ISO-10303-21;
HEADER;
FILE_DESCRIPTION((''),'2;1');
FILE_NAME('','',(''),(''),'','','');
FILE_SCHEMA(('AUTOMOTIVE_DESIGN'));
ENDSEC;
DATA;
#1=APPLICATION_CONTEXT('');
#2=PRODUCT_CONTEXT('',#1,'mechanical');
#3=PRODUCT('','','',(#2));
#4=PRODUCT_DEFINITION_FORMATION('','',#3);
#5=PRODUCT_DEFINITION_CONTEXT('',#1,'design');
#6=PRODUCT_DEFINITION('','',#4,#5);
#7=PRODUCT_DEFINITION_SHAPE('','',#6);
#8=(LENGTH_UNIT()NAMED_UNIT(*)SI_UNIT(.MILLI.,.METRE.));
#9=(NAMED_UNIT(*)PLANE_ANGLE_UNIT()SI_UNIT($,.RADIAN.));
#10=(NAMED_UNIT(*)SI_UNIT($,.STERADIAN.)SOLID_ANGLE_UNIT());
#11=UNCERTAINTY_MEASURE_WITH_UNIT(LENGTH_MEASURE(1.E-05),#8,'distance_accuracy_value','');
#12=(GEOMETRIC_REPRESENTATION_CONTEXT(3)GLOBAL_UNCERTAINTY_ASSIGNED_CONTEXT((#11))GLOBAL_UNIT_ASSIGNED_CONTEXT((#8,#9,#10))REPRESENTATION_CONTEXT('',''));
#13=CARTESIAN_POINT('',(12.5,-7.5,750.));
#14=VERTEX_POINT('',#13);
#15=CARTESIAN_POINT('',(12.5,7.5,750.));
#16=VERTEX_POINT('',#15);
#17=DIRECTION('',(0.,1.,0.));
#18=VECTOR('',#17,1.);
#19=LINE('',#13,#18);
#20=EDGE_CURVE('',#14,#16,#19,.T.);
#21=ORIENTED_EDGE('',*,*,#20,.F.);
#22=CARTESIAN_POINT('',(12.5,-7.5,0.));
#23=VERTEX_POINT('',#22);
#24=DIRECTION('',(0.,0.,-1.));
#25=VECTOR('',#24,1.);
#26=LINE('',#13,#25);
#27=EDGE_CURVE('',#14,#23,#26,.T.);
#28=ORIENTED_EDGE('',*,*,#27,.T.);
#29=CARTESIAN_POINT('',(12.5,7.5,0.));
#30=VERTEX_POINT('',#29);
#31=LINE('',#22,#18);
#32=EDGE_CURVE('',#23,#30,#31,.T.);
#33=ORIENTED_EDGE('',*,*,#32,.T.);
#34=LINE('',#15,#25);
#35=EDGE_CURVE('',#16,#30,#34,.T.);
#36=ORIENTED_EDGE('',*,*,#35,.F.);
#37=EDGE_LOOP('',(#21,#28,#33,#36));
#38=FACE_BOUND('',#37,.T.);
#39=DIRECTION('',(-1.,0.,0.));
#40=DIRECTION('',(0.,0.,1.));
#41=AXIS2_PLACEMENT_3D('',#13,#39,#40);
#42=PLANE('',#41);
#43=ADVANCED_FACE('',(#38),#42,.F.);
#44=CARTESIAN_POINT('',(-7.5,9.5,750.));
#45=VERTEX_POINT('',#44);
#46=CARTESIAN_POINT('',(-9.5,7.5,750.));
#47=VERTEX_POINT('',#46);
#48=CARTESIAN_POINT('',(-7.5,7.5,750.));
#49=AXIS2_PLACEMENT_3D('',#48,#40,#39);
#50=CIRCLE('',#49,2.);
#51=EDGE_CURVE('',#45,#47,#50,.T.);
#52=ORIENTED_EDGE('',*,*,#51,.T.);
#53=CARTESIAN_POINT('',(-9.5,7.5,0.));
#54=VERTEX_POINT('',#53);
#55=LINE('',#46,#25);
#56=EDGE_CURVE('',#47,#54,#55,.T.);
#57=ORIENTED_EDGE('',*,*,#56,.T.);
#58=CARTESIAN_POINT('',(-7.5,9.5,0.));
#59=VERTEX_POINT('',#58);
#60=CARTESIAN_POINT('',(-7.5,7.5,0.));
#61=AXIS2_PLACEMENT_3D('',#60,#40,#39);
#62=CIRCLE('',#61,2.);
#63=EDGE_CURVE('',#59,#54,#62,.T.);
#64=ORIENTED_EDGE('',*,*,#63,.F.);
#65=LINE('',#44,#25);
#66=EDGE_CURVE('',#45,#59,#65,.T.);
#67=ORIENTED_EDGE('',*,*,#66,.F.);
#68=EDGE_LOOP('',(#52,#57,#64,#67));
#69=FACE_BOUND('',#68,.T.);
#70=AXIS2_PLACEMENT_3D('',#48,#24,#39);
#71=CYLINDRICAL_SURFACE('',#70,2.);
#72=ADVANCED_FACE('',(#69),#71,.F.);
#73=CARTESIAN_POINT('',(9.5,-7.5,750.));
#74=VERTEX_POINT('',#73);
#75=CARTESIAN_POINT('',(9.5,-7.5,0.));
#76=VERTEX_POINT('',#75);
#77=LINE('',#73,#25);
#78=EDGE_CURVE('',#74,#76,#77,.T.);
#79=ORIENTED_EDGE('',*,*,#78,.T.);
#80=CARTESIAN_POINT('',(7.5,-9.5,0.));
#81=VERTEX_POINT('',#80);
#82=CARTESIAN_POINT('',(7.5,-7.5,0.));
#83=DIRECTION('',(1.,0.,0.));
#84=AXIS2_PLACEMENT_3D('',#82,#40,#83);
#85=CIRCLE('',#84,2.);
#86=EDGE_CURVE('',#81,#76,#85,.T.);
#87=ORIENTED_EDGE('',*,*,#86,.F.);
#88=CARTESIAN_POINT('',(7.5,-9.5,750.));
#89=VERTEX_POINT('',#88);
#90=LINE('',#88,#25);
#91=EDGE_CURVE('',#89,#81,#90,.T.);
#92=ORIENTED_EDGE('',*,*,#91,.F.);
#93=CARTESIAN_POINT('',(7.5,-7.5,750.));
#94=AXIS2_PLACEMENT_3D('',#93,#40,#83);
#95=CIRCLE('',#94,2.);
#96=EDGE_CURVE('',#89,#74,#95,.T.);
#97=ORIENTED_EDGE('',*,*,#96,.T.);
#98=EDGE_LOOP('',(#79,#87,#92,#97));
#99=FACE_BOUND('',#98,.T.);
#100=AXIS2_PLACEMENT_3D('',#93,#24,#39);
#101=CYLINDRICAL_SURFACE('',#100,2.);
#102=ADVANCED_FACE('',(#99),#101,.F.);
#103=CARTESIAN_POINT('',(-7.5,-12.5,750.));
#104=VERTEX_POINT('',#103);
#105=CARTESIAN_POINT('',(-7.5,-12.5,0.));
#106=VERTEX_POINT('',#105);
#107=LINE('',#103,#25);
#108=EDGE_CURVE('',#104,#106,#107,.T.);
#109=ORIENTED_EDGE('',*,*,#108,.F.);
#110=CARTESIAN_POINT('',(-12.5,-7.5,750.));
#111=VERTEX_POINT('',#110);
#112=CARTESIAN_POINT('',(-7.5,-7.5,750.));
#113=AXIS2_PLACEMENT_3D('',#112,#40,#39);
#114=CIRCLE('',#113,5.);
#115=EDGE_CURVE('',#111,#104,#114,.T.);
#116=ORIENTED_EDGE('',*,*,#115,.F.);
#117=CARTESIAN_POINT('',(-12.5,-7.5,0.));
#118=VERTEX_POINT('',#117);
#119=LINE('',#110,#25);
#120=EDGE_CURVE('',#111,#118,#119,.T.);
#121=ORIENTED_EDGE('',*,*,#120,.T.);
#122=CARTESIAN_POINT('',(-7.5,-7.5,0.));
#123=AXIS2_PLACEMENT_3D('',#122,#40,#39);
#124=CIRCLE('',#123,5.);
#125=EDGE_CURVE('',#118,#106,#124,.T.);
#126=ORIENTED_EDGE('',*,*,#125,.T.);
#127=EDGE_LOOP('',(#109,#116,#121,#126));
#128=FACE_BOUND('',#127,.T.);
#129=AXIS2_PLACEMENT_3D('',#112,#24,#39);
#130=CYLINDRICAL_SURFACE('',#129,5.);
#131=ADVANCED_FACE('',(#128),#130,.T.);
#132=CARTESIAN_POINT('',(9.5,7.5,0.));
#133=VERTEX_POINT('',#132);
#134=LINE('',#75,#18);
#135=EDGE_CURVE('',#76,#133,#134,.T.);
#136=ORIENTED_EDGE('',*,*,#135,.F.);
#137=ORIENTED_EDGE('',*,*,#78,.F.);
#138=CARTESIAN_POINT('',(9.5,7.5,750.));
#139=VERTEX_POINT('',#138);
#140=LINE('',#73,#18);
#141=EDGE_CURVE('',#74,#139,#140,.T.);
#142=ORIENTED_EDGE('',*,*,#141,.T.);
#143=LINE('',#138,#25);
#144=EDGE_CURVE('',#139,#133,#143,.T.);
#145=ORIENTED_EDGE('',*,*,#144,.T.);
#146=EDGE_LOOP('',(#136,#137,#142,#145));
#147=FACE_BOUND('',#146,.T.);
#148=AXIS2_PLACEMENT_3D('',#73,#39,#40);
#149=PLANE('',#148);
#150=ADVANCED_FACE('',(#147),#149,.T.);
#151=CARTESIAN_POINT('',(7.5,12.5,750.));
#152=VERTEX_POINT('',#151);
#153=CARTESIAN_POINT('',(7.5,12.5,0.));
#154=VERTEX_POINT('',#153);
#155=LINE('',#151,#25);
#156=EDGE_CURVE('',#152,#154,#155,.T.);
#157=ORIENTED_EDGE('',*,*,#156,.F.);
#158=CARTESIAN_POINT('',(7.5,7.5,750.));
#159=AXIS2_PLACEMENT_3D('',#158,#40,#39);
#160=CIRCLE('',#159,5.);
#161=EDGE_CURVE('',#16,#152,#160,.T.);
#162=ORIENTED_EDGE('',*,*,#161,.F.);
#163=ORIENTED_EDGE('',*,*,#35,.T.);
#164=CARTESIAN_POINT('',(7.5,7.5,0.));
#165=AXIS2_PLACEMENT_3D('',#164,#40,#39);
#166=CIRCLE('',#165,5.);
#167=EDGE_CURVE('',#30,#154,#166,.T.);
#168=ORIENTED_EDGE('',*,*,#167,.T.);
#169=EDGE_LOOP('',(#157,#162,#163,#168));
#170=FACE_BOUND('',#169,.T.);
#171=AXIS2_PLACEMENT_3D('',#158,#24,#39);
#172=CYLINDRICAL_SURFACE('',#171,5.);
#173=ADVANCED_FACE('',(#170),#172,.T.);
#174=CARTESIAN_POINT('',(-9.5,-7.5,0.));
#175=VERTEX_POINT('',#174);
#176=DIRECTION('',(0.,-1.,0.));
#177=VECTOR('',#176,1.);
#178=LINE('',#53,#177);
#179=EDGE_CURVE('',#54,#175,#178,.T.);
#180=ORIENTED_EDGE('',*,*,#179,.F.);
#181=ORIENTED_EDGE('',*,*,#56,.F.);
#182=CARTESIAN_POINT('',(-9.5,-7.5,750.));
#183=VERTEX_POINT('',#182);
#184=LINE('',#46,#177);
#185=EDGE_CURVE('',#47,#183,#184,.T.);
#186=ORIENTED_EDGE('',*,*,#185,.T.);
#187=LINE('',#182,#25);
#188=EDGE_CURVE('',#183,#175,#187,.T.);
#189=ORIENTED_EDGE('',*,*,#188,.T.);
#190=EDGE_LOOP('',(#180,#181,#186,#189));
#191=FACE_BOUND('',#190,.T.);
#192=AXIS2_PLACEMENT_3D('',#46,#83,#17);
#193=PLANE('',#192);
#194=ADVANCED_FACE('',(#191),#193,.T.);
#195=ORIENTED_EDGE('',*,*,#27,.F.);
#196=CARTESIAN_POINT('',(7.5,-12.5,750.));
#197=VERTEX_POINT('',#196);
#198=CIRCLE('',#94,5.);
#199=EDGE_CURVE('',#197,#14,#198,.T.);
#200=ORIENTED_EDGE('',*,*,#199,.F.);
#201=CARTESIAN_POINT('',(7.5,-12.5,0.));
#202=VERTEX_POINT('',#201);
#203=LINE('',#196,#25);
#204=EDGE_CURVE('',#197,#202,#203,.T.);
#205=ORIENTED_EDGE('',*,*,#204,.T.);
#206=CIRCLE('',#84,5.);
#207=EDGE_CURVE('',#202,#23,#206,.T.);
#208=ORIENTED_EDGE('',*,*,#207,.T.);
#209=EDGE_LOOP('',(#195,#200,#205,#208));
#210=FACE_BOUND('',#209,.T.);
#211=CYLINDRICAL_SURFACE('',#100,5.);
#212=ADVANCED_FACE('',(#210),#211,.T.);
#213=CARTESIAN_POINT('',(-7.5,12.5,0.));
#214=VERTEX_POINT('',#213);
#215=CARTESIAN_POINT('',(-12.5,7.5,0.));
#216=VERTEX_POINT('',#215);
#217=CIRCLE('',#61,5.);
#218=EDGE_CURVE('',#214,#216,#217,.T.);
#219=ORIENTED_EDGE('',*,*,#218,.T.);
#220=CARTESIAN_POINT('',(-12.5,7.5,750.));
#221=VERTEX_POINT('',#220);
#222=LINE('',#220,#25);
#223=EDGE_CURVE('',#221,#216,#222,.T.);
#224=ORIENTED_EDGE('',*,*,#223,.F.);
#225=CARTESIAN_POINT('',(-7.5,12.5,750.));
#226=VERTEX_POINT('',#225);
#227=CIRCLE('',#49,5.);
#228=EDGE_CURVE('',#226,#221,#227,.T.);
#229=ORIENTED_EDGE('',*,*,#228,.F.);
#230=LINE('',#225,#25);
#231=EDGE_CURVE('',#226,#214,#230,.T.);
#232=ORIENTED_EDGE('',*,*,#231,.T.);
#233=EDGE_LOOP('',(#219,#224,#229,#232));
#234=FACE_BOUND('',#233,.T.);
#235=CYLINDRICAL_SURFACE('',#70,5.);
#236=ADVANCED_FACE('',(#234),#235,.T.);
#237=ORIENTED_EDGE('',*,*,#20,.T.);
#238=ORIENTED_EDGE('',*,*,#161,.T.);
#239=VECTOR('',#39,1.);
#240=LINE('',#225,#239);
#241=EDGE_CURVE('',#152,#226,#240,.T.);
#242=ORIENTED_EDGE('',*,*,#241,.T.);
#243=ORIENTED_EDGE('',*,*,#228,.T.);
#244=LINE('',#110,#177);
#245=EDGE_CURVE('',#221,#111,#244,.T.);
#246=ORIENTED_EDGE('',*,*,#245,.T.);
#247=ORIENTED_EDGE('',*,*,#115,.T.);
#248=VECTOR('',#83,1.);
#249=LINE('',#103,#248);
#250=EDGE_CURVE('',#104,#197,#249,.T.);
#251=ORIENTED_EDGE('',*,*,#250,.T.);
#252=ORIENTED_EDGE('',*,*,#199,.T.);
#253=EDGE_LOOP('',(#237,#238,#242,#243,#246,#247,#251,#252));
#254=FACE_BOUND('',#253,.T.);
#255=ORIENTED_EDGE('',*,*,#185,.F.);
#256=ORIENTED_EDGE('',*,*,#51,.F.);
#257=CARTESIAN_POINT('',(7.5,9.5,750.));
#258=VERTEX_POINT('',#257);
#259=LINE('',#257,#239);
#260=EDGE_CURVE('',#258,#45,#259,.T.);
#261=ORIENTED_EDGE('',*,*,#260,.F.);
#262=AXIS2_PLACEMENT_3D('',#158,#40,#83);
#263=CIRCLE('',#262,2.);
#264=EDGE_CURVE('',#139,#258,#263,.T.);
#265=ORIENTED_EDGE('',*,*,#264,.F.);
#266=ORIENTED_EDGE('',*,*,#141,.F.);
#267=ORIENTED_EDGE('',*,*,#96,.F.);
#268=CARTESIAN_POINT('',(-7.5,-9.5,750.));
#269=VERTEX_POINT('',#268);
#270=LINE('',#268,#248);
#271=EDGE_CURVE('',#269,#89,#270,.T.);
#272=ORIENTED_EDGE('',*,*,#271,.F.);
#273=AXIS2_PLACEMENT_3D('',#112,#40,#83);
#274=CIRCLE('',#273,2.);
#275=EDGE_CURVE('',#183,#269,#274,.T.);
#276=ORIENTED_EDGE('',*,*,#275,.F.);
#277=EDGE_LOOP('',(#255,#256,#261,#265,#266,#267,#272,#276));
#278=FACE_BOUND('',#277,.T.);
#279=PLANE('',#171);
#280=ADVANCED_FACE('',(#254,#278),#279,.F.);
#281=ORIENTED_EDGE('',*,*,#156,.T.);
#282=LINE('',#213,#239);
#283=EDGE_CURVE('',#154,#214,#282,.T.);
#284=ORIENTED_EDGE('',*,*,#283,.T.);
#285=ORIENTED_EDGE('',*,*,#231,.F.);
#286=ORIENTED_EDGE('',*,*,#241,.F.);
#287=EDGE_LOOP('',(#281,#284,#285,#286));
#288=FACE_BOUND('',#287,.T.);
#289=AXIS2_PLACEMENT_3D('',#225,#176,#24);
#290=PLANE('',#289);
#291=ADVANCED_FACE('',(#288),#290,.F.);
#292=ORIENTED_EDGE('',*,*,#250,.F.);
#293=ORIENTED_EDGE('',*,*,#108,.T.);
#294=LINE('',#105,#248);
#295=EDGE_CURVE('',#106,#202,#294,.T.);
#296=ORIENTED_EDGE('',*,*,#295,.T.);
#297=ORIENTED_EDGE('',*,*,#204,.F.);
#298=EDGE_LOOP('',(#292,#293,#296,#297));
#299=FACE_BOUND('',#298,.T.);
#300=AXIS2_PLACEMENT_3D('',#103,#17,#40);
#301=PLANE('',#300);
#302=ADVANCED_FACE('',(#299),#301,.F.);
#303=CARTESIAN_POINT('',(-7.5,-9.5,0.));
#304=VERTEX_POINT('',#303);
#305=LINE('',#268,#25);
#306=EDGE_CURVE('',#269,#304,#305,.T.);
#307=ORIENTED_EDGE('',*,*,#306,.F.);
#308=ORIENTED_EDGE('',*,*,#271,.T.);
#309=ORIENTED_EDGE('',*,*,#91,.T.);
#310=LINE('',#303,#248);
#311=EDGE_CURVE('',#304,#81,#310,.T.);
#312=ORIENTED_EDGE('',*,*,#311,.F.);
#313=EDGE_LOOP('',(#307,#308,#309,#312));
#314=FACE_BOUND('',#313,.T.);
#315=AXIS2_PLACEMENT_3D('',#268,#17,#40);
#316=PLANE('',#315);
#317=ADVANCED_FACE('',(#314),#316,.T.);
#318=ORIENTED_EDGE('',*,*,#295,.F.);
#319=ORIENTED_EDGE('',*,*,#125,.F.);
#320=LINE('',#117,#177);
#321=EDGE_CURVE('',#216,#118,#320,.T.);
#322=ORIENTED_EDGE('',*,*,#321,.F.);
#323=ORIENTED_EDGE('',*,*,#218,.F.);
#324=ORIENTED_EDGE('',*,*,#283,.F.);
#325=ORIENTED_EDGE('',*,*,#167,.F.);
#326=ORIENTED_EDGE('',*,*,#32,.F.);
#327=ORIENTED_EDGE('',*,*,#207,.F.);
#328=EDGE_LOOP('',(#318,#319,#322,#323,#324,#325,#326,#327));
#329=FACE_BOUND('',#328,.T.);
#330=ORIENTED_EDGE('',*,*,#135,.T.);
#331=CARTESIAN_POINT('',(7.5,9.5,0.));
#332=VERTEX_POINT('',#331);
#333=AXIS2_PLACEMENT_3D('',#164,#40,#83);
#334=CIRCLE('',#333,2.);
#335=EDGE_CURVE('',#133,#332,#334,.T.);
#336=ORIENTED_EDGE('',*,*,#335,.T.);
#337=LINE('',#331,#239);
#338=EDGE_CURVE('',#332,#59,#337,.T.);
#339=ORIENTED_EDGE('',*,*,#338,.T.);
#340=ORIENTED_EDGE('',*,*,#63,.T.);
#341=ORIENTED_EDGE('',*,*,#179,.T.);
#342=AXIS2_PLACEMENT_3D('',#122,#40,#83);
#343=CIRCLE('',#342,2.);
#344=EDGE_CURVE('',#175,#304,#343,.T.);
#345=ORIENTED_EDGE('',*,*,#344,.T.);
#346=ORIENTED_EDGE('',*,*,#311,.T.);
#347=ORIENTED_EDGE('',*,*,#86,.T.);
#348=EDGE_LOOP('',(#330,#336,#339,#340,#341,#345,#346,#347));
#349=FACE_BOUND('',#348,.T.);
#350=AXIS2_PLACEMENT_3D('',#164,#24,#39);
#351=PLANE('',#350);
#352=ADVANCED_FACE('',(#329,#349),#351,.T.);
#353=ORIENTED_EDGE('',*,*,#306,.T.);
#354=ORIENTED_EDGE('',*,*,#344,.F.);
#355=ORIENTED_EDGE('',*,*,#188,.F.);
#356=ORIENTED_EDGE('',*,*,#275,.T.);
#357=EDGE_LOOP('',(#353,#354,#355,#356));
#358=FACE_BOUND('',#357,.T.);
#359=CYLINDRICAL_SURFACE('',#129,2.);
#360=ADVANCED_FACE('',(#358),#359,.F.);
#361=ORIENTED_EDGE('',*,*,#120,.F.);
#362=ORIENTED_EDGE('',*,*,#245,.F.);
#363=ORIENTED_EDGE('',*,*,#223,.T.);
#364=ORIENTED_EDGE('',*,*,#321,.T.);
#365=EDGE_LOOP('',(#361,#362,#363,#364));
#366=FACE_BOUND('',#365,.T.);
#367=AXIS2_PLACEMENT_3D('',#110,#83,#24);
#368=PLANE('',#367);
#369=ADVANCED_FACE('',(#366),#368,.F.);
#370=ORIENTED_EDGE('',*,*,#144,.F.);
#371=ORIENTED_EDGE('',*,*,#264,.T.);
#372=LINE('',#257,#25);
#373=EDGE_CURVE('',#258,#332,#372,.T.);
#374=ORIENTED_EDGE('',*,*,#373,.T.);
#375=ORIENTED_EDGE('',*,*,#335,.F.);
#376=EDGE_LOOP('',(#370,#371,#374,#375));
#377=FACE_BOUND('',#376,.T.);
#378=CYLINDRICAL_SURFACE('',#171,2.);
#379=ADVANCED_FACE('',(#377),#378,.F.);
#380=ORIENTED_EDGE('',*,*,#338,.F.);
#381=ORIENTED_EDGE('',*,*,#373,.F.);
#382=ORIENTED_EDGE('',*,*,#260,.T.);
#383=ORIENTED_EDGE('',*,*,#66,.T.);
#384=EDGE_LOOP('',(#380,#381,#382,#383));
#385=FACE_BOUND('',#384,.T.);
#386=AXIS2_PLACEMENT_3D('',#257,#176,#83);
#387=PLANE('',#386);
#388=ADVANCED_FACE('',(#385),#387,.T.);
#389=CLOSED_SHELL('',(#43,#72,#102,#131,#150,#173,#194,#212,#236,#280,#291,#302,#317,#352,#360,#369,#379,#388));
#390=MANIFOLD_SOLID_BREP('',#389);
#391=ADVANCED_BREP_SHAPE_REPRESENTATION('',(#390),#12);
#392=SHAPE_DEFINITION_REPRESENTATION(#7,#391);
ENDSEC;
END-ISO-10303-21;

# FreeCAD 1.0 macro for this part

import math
import FreeCAD as App
import Part
import Sketcher
from FreeCAD import Vector

doc = App.newDocument("Part")
body = doc.addObject("PartDesign::Body", "Body")

# Sketch on XY plane
sketch1 = body.newObject("Sketcher::SketchObject", "Sketch")
sketch1.AttachmentSupport = (doc.getObject("XY_Plane"), [""])
sketch1.MapMode = "FlatFace"
sketch1.addGeometry([
    Part.LineSegment(Vector(-7.5, -12.5, 0), Vector(7.5, -12.5, 0)),  # 0
    Part.ArcOfCircle(Part.Circle(Vector(7.5, -7.5, 0), Vector(0, 0, 1), 5), math.radians(-90), math.radians(0)),  # 1
    Part.LineSegment(Vector(12.5, -7.5, 0), Vector(12.5, 7.5, 0)),  # 2
    Part.ArcOfCircle(Part.Circle(Vector(7.5, 7.5, 0), Vector(0, 0, 1), 5), math.radians(0), math.radians(90)),  # 3
    Part.LineSegment(Vector(7.5, 12.5, 0), Vector(-7.5, 12.5, 0)),  # 4
    Part.ArcOfCircle(Part.Circle(Vector(-7.5, 7.5, 0), Vector(0, 0, 1), 5), math.radians(90), math.radians(180)),  # 5
    Part.LineSegment(Vector(-12.5, 7.5, 0), Vector(-12.5, -7.5, 0)),  # 6
    Part.ArcOfCircle(Part.Circle(Vector(-7.5, -7.5, 0), Vector(0, 0, 1), 5), math.radians(180), math.radians(270)),  # 7
    Part.LineSegment(Vector(-9.5, -7.5, 0), Vector(-9.5, 7.5, 0)),  # 8
    Part.ArcOfCircle(Part.Circle(Vector(-7.5, 7.5, 0), Vector(0, 0, 1), 2), math.radians(90), math.radians(180)),  # 9
    Part.LineSegment(Vector(-7.5, 9.5, 0), Vector(7.5, 9.5, 0)),  # 10
    Part.ArcOfCircle(Part.Circle(Vector(7.5, 7.5, 0), Vector(0, 0, 1), 2), math.radians(0), math.radians(90)),  # 11
    Part.LineSegment(Vector(9.5, 7.5, 0), Vector(9.5, -7.5, 0)),  # 12
    Part.ArcOfCircle(Part.Circle(Vector(7.5, -7.5, 0), Vector(0, 0, 1), 2), math.radians(-90), math.radians(0)),  # 13
    Part.LineSegment(Vector(7.5, -9.5, 0), Vector(-7.5, -9.5, 0)),  # 14
    Part.ArcOfCircle(Part.Circle(Vector(-7.5, -7.5, 0), Vector(0, 0, 1), 2), math.radians(-180), math.radians(-90)),  # 15
], False)
sketch1.addConstraint([
    Sketcher.Constraint("Tangent", 0, 2, 1, 1),
    Sketcher.Constraint("Tangent", 1, 2, 2, 1),
    Sketcher.Constraint("Tangent", 2, 2, 3, 1),
    Sketcher.Constraint("Tangent", 3, 2, 4, 1),
    Sketcher.Constraint("Tangent", 4, 2, 5, 1),
    Sketcher.Constraint("Tangent", 5, 2, 6, 1),
    Sketcher.Constraint("Tangent", 6, 2, 7, 1),
    Sketcher.Constraint("Tangent", 7, 2, 0, 1),
    Sketcher.Constraint("Tangent", 8, 2, 9, 2),
    Sketcher.Constraint("Tangent", 9, 1, 10, 1),
    Sketcher.Constraint("Tangent", 10, 2, 11, 2),
    Sketcher.Constraint("Tangent", 11, 1, 12, 1),
    Sketcher.Constraint("Tangent", 12, 2, 13, 2),
    Sketcher.Constraint("Tangent", 13, 1, 14, 1),
    Sketcher.Constraint("Tangent", 14, 2, 15, 2),
    Sketcher.Constraint("Tangent", 15, 1, 8, 1),
    Sketcher.Constraint("Horizontal", 0),
    Sketcher.Constraint("Vertical", 2),
    Sketcher.Constraint("Horizontal", 4),
    Sketcher.Constraint("Vertical", 6),
    Sketcher.Constraint("Vertical", 8),
    Sketcher.Constraint("Horizontal", 10),
    Sketcher.Constraint("Vertical", 12),
    Sketcher.Constraint("Horizontal", 14),
    Sketcher.Constraint("Coincident", 9, 3, 5, 3),
    Sketcher.Constraint("Coincident", 11, 3, 3, 3),
    Sketcher.Constraint("Coincident", 13, 3, 1, 3),
    Sketcher.Constraint("Equal", 1, 3),
    Sketcher.Constraint("Equal", 3, 5),
    Sketcher.Constraint("Equal", 5, 7),
    Sketcher.Constraint("Equal", 13, 15),
    Sketcher.Constraint("Symmetric", 1, 3, 5, 3, -1, 1),
    Sketcher.Constraint("Equal", 14, 2),
    Sketcher.Constraint("Radius", 1, 5.0),
    Sketcher.Constraint("Radius", 9, 2.0),
    Sketcher.Constraint("DistanceX", 0, 1, 0, 2, 15.0),
])
pad1 = body.newObject("PartDesign::Pad", "Pad")
pad1.Profile = sketch1
pad1.Length = 750

doc.recompute()
